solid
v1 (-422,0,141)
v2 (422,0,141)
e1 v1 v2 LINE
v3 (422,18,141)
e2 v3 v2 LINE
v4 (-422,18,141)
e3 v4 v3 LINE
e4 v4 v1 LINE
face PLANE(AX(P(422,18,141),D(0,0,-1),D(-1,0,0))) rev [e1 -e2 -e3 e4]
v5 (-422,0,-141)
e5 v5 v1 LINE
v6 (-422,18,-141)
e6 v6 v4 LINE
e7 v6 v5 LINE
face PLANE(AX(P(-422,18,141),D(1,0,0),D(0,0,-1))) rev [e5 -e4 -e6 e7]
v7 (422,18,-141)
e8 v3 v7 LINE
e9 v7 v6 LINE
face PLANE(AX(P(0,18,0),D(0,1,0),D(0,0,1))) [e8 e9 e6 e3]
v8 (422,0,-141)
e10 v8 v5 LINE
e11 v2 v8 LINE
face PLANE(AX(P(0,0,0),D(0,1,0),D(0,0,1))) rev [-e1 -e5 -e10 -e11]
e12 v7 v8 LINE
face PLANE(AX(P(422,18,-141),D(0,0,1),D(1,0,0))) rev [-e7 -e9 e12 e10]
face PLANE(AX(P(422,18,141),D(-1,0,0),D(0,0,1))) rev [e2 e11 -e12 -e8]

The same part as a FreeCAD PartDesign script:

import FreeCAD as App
import Part
import Sketcher

V = App.Vector
Q = App.Units.Quantity


def add_polygon(sketch, points):
    """Adds a closed chain of lines whose ends are joined by coincident constraints."""
    first, n = sketch.GeometryCount, len(points)
    for a, b in zip(points, points[1:] + points[:1]):
        sketch.addGeometry(Part.LineSegment(App.Vector(*a, 0), App.Vector(*b, 0)), False)
    for i in range(n):
        sketch.addConstraint(Sketcher.Constraint("Coincident", first + i, 2, first + (i + 1) % n, 1))

doc = App.newDocument("Part")
body = doc.addObject("PartDesign::Body", "Body")

sketch1 = body.newObject("Sketcher::SketchObject", "Sketch")
sketch1.AttachmentSupport = (doc.getObject("XZ_Plane"), [""])
sketch1.MapMode = "FlatFace"
add_polygon(sketch1, [(-422, -141), (-422, 141), (422, 141), (422, -141)])
sketch1.addConstraint([
    Sketcher.Constraint("Vertical", 0),
    Sketcher.Constraint("Horizontal", 1),
    Sketcher.Constraint("Vertical", 2),
    Sketcher.Constraint("Horizontal", 3),
    Sketcher.Constraint("Symmetric", 0, 2, 2, 2, -1, 1),
    Sketcher.Constraint("DistanceX", 1, 1, 1, 2, Q("844 mm")),
    Sketcher.Constraint("DistanceY", 0, 1, 0, 2, Q("282 mm")),
])
pad1 = body.newObject("PartDesign::Pad", "Pad")
pad1.Profile = sketch1
pad1.Length = 18
pad1.Reversed = True

doc.recompute()
